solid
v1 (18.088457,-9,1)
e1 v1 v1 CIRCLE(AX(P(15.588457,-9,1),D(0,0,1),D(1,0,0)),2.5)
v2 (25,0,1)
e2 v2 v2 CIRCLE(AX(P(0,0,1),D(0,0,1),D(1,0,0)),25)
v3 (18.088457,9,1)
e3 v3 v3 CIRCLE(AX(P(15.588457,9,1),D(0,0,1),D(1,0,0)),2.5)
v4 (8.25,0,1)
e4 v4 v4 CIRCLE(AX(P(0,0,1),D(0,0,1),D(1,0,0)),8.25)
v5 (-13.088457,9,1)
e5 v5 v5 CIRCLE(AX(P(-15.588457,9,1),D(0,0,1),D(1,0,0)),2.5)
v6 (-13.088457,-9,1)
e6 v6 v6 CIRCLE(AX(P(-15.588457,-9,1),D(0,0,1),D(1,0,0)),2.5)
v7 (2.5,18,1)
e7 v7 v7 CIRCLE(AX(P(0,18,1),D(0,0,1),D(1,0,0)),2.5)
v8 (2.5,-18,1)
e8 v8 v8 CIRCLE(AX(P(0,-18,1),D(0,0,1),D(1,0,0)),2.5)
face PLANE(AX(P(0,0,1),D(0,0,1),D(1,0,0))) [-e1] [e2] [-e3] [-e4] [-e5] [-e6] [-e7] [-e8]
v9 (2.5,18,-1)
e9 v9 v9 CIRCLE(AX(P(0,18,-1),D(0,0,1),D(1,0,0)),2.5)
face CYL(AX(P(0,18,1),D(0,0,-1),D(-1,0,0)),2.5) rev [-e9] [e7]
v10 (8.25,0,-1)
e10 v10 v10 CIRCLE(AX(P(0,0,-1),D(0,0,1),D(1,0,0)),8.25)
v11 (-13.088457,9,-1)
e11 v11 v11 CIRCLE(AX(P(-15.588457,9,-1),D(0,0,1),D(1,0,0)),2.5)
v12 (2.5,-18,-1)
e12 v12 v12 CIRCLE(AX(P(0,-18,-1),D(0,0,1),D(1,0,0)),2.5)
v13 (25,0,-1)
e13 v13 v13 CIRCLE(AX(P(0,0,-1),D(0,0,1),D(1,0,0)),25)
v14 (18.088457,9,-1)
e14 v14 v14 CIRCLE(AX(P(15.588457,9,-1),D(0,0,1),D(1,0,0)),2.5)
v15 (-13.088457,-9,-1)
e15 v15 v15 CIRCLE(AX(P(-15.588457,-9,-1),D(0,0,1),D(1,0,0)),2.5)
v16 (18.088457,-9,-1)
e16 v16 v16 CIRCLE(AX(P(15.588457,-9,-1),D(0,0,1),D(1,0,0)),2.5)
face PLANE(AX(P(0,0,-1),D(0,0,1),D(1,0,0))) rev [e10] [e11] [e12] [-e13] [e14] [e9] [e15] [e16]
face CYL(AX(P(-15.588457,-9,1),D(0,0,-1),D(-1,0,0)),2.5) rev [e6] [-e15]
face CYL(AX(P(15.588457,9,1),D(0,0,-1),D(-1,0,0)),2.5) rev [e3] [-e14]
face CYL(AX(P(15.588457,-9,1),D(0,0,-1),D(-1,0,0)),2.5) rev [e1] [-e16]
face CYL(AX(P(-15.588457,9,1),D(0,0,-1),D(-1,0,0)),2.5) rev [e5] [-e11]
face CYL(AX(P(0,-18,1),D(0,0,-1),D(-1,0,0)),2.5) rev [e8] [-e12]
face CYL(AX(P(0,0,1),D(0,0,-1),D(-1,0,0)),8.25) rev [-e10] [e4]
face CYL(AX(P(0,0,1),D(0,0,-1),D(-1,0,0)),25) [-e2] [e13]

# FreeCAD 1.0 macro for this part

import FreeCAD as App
import Part
import Sketcher
from FreeCAD import Vector
Q = App.Units.Quantity

doc = App.newDocument("Part")
body = doc.addObject("PartDesign::Body", "Body")

# Sketch on XY plane
sketch1 = body.newObject("Sketcher::SketchObject", "Sketch")
sketch1.AttachmentSupport = (doc.getObject("XY_Plane"), [""])
sketch1.MapMode = "FlatFace"
sketch1.addGeometry([
    Part.Circle(Vector(0, 0, 0), Vector(0, 0, 1), 25),  # 0
    Part.Circle(Vector(-15.6, -9, 0), Vector(0, 0, 1), 2.5),  # 1
    Part.Circle(Vector(0, -18, 0), Vector(0, 0, 1), 2.5),  # 2
    Part.Circle(Vector(15.6, -9, 0), Vector(0, 0, 1), 2.5),  # 3
    Part.Circle(Vector(-15.6, 9, 0), Vector(0, 0, 1), 2.5),  # 4
    Part.Circle(Vector(0, 0, 0), Vector(0, 0, 1), 8.2),  # 5
    Part.Circle(Vector(15.6, 9, 0), Vector(0, 0, 1), 2.5),  # 6
    Part.Circle(Vector(0, 18, 0), Vector(0, 0, 1), 2.5),  # 7
], False)
sketch1.addConstraint([
    Sketcher.Constraint("Coincident", 0, 3, -1, 1),
    Sketcher.Constraint("Coincident", 5, 3, -1, 1),
    Sketcher.Constraint("Equal", 1, 2),
    Sketcher.Constraint("Equal", 2, 3),
    Sketcher.Constraint("Equal", 3, 4),
    Sketcher.Constraint("Equal", 4, 6),
    Sketcher.Constraint("Equal", 6, 7),
    Sketcher.Constraint("Symmetric", 3, 3, 4, 3, -1, 1),
    Sketcher.Constraint("Symmetric", 1, 3, 6, 3, -1, 1),
    Sketcher.Constraint("Symmetric", 2, 3, 7, 3, -1, 1),
    Sketcher.Constraint("Symmetric", 1, 3, 3, 3, -2),
    Sketcher.Constraint("PointOnObject", 2, 3, -2),
    Sketcher.Constraint("Diameter", 0, Q("50 mm")),
    Sketcher.Constraint("Diameter", 1, Q("5 mm")),
    Sketcher.Constraint("Diameter", 5, Q("16.5 mm")),
    Sketcher.Constraint("DistanceY", 1, 3, -1, 1, Q("9 mm")),
    Sketcher.Constraint("DistanceY", 2, 3, -1, 1, Q("18 mm")),
    Sketcher.Constraint("DistanceX", 1, 3, -1, 1, Q("15.588457 mm")),
])
pad1 = body.newObject("PartDesign::Pad", "Pad")
pad1.Profile = sketch1
pad1.Length = 2
pad1.Midplane = True

doc.recompute()
